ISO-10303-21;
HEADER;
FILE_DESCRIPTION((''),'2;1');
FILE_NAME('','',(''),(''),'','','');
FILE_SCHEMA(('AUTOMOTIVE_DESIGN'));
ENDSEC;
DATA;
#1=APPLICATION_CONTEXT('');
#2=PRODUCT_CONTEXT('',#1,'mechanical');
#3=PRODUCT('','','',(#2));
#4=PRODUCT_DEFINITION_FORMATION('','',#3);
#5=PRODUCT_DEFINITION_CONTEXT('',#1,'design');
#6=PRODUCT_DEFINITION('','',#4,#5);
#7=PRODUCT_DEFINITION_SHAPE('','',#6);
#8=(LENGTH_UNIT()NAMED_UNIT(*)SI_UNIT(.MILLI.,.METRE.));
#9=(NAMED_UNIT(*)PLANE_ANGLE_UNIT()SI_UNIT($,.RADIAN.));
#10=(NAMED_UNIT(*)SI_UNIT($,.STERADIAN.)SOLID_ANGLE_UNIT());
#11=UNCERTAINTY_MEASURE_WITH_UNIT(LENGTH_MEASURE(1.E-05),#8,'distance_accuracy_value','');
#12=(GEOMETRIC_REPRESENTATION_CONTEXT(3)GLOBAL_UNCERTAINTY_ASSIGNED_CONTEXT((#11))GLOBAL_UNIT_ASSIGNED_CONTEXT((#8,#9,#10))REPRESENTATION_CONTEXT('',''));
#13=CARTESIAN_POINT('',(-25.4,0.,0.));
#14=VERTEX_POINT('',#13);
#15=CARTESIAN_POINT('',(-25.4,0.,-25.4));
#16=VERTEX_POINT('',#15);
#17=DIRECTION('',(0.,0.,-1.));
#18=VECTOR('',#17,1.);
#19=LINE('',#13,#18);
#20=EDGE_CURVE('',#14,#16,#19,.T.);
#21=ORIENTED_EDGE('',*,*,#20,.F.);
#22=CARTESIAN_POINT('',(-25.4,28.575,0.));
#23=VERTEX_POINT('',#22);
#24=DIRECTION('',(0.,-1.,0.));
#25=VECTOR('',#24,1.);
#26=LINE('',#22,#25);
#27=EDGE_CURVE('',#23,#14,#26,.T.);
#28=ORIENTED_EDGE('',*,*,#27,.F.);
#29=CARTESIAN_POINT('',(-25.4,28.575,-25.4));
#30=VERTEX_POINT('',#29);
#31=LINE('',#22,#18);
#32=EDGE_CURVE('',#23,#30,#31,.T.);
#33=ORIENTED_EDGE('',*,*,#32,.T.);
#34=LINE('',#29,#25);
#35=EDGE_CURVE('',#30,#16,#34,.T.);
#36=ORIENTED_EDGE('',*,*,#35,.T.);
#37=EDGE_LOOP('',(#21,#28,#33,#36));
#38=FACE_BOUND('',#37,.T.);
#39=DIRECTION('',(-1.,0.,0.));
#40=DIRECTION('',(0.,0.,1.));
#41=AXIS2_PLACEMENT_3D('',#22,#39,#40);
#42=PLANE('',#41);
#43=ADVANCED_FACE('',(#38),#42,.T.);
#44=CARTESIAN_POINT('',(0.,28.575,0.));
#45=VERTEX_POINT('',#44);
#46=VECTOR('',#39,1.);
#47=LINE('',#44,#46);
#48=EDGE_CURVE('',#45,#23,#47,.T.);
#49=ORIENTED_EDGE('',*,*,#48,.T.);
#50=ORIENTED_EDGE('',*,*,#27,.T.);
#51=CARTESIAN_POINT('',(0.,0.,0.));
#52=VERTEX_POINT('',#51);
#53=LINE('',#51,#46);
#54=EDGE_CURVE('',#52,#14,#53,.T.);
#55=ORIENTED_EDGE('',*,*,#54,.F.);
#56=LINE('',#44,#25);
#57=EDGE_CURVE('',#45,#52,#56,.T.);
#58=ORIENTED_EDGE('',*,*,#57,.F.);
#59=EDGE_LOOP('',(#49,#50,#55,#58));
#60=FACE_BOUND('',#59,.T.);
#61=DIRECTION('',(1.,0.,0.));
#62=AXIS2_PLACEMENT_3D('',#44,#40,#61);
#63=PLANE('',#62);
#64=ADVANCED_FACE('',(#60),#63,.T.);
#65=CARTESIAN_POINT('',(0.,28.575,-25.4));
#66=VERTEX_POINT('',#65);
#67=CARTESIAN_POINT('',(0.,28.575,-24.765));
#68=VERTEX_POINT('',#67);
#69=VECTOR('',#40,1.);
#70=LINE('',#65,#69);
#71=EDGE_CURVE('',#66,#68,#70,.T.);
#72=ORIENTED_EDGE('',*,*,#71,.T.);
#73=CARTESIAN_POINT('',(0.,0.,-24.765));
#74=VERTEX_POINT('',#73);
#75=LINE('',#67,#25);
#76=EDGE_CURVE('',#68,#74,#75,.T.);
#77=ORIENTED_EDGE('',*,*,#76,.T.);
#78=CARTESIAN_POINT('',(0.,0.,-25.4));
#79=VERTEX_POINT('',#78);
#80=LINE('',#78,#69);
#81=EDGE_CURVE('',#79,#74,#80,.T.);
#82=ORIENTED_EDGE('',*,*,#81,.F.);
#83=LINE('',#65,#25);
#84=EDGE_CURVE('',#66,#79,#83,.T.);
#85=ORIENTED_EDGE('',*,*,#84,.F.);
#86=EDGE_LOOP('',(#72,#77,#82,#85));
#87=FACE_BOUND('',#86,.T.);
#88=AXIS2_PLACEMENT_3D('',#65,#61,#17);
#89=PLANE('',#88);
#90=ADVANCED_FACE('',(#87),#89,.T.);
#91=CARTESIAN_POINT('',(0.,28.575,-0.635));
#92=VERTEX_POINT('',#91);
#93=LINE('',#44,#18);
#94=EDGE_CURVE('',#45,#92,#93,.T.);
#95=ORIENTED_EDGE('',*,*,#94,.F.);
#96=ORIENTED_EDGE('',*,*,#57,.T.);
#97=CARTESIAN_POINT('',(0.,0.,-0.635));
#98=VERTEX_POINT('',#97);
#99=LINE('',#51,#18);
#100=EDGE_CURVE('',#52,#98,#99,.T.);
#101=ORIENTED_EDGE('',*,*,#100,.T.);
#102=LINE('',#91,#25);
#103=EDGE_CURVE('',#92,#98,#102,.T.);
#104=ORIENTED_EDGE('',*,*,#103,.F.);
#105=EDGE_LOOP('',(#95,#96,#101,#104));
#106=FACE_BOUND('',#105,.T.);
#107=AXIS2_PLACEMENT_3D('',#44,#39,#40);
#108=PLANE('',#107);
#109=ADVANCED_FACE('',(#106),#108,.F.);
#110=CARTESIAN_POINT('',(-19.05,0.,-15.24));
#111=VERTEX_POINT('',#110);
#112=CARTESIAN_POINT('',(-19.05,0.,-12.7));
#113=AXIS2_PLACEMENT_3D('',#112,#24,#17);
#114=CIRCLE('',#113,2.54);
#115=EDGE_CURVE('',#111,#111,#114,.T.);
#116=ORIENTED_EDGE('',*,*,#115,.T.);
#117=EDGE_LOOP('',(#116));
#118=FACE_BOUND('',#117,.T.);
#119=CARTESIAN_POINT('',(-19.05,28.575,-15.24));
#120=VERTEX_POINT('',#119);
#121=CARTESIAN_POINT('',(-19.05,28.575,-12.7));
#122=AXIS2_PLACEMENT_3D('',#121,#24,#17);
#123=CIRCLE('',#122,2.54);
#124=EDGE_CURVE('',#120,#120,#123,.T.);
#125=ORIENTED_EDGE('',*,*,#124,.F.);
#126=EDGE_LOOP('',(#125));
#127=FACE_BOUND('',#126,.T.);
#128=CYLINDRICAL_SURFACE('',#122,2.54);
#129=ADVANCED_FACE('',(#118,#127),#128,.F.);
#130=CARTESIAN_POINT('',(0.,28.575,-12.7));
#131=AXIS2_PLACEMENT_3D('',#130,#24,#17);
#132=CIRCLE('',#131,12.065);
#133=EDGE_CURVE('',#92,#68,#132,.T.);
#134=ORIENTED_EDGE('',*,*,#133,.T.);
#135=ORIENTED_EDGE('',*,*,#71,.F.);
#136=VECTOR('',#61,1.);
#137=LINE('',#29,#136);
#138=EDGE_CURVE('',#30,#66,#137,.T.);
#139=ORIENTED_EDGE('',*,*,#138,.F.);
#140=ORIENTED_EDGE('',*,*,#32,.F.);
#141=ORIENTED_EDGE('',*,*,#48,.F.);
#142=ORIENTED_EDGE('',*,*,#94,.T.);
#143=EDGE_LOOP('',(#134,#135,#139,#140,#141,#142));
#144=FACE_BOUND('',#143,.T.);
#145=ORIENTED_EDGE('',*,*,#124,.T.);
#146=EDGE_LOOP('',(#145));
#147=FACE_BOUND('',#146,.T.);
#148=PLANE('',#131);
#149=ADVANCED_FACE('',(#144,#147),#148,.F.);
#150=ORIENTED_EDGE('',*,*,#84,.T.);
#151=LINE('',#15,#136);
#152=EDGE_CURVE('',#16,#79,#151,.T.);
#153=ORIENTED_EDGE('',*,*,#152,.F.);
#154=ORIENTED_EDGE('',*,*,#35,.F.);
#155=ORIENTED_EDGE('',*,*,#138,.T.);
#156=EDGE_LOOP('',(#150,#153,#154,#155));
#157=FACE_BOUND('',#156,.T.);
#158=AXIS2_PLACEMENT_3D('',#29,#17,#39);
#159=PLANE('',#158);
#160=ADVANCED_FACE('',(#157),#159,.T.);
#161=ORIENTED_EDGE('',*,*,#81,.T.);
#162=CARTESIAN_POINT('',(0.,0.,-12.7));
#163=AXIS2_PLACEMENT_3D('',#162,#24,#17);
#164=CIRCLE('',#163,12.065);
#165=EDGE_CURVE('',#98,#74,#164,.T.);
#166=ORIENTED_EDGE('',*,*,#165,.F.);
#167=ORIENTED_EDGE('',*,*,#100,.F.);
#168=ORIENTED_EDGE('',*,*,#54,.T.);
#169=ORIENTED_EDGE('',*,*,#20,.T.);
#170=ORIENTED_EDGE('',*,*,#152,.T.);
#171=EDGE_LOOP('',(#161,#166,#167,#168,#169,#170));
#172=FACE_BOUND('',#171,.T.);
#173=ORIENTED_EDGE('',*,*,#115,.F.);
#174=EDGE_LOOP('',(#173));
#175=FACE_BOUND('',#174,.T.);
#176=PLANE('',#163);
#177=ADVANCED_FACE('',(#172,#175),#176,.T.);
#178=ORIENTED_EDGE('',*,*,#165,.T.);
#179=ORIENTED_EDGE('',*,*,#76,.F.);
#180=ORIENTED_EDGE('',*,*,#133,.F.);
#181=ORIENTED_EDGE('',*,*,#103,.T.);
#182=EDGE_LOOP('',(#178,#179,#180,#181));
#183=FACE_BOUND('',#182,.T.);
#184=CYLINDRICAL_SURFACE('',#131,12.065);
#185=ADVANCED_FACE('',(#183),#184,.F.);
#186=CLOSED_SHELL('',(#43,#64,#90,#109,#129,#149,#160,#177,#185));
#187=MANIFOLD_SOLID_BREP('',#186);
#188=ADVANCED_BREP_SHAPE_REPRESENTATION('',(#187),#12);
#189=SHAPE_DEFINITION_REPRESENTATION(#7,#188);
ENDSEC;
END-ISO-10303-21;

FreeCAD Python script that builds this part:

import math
import FreeCAD as App
import Part
import Sketcher
from FreeCAD import Vector
Q = App.Units.Quantity

doc = App.newDocument("Part")
params = doc.addObject("Spreadsheet::Sheet", "Params")
for row, (alias, value) in enumerate([
    ("sketch1_width", "1 in"),
    ("sketch1_radius", "0.475 in"),
    ("pad1_length", "1.125 in"),
    ("sketch2_diameter", "0.2 in"),
    ("pocket1_length", "1.125 in"),
], start=1):
    params.set(f"A{row}", alias)
    params.set(f"B{row}", "=" + value)
    params.setAlias(f"B{row}", alias)

body = doc.addObject("PartDesign::Body", "Body")

# Sketch on XZ plane
sketch1 = doc.addObject("Sketcher::SketchObject", "Sketch")
body.addObject(sketch1)
sketch1.AttachmentSupport = (doc.XZ_Plane, [""])
sketch1.MapMode = "FlatFace"
sketch1.addGeometry(Part.LineSegment(Vector(0, 0, 0), Vector(0, -0.6, 0)), False)
sketch1.addGeometry(Part.ArcOfCircle(Part.Circle(Vector(0, -12.7, 0), Vector(0, 0, 1), 12.1), math.radians(90), math.radians(270)), False)
sketch1.addGeometry(Part.LineSegment(Vector(0, -24.8, 0), Vector(0, -25.4, 0)), False)
sketch1.addGeometry(Part.LineSegment(Vector(0, -25.4, 0), Vector(-25.4, -25.4, 0)), False)
sketch1.addGeometry(Part.LineSegment(Vector(-25.4, -25.4, 0), Vector(-25.4, 0, 0)), False)
sketch1.addGeometry(Part.LineSegment(Vector(-25.4, 0, 0), Vector(0, 0, 0)), False)
sketch1.addConstraint(Sketcher.Constraint("Coincident", 0, 2, 1, 1))
sketch1.addConstraint(Sketcher.Constraint("Coincident", 1, 2, 2, 1))
sketch1.addConstraint(Sketcher.Constraint("Coincident", 2, 2, 3, 1))
sketch1.addConstraint(Sketcher.Constraint("Coincident", 3, 2, 4, 1))
sketch1.addConstraint(Sketcher.Constraint("Coincident", 4, 2, 5, 1))
sketch1.addConstraint(Sketcher.Constraint("Coincident", 5, 2, 0, 1))
sketch1.addConstraint(Sketcher.Constraint("Vertical", 0))
sketch1.addConstraint(Sketcher.Constraint("Vertical", 2))
sketch1.addConstraint(Sketcher.Constraint("Horizontal", 3))
sketch1.addConstraint(Sketcher.Constraint("Vertical", 4))
sketch1.addConstraint(Sketcher.Constraint("Horizontal", 5))
sketch1.addConstraint(Sketcher.Constraint("Coincident", 5, 2, -1, 1))
sketch1.addConstraint(Sketcher.Constraint("PointOnObject", 1, 3, -2))
sketch1.addConstraint(Sketcher.Constraint("PointOnObject", 1, 2, -2))
sketch1.addConstraint(Sketcher.Constraint("Equal", 0, 2))
sketch1.addConstraint(Sketcher.Constraint("Equal", 5, 4))
sketch1.addConstraint(Sketcher.Constraint("DistanceX", 3, 2, 3, 1, Q("1 in")))
sketch1.addConstraint(Sketcher.Constraint("Radius", 1, Q("0.475 in")))
sketch1.setExpression("Constraints[16]", "Params.sketch1_width")
sketch1.setExpression("Constraints[17]", "Params.sketch1_radius")
pad1 = doc.addObject("PartDesign::Pad", "Pad")
body.addObject(pad1)
pad1.Profile = sketch1
pad1.setExpression("Length", "Params.pad1_length")
pad1.Reversed = True

# Sketch on XZ plane
sketch2 = doc.addObject("Sketcher::SketchObject", "Sketch001")
body.addObject(sketch2)
sketch2.AttachmentSupport = (doc.XZ_Plane, [""])
sketch2.MapMode = "FlatFace"
sketch2.addGeometry(Part.Circle(Vector(-19.1, -12.7, 0), Vector(0, 0, 1), 2.5), False)
sketch2.addConstraint(Sketcher.Constraint("Diameter", 0, Q("0.2 in")))
sketch2.addConstraint(Sketcher.Constraint("DistanceY", 0, 3, -1, 1, Q("0.5 in")))
sketch2.addConstraint(Sketcher.Constraint("DistanceX", 0, 3, -1, 1, Q("0.75 in")))
sketch2.setExpression("Constraints[0]", "Params.sketch2_diameter")
pocket1 = doc.addObject("PartDesign::Pocket", "Pocket")
body.addObject(pocket1)
pocket1.Profile = sketch2
pocket1.setExpression("Length", "Params.pocket1_length")

doc.recompute()
